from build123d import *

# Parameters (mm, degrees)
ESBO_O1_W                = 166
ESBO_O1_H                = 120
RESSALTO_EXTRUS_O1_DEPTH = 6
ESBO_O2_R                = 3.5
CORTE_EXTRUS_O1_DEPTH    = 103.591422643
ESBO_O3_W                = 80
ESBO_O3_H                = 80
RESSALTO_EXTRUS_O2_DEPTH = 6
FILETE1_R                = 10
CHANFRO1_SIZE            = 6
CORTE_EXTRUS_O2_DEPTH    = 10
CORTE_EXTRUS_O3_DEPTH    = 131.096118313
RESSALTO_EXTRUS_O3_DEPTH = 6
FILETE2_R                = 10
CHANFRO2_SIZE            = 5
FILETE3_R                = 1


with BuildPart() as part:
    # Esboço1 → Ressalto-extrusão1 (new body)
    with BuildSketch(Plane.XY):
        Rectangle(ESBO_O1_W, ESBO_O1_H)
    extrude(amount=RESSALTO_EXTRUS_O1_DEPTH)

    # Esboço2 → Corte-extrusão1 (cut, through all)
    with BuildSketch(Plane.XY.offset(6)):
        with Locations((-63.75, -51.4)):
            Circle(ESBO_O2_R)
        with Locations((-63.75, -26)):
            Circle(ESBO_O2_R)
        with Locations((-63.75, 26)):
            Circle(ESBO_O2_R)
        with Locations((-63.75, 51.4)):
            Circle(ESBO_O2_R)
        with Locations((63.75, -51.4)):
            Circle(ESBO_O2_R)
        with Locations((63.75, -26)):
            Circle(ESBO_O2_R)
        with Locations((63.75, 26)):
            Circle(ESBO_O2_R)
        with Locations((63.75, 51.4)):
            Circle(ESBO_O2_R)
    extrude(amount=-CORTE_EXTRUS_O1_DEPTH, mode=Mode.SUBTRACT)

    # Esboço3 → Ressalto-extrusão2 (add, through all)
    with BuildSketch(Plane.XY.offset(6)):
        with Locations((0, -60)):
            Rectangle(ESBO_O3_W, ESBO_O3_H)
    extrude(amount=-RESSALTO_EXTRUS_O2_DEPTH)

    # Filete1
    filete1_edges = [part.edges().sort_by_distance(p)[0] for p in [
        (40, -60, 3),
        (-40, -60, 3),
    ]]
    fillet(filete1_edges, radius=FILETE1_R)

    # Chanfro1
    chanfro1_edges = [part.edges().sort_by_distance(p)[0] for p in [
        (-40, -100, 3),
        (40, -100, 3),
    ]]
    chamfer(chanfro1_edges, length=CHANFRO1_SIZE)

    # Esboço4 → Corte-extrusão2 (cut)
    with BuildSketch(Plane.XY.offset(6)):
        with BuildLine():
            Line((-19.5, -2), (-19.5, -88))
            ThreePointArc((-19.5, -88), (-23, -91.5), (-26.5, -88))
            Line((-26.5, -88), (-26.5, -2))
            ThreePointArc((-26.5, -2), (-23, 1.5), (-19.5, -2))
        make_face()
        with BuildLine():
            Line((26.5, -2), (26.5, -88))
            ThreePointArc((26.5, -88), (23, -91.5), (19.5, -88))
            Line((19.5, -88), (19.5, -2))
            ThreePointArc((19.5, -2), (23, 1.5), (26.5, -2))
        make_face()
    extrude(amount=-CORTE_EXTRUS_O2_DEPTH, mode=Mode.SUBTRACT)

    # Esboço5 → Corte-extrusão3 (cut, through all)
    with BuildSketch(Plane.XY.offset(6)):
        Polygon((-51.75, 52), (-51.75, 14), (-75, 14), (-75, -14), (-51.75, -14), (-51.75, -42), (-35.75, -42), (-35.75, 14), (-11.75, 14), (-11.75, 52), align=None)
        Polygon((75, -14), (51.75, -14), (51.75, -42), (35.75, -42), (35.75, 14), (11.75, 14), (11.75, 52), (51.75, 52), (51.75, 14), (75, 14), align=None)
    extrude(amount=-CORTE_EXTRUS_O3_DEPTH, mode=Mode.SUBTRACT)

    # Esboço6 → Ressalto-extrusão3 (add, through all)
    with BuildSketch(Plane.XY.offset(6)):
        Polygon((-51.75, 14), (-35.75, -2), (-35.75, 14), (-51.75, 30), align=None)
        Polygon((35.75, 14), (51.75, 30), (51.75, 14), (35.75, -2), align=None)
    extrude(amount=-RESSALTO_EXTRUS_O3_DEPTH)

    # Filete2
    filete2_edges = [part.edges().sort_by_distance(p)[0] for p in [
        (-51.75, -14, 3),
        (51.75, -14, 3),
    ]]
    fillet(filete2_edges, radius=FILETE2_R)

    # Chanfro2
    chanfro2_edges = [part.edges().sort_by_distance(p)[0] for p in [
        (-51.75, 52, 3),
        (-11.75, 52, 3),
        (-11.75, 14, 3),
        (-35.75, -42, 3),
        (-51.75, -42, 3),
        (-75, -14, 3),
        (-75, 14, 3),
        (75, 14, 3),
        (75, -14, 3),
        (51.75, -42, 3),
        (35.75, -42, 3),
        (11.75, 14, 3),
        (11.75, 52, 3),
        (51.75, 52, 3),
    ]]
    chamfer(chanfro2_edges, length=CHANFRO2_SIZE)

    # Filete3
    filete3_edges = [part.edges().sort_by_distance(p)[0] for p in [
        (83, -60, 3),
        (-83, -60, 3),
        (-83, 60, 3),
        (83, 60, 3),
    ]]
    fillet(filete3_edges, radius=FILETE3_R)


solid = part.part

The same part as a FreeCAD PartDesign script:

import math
import FreeCAD as App
import Part
import Sketcher
from FreeCAD import Vector


def edges_at(feature, points):
    """Names of the edges that pass closest to the given points."""
    edges = feature.Shape.Edges
    near = lambda p: min(range(len(edges)), key=lambda i: edges[i].distToShape(Part.Vertex(*p))[0])
    return sorted({f"Edge{near(p) + 1}" for p in points})


def add_polygon(sketch, points):
    """Adds a closed chain of lines whose ends are joined by coincident constraints."""
    first, n = sketch.GeometryCount, len(points)
    for a, b in zip(points, points[1:] + points[:1]):
        sketch.addGeometry(Part.LineSegment(App.Vector(*a, 0), App.Vector(*b, 0)), False)
    for i in range(n):
        sketch.addConstraint(Sketcher.Constraint("Coincident", first + i, 2, first + (i + 1) % n, 1))

doc = App.newDocument("Part")
params = doc.addObject("Spreadsheet::Sheet", "Params")
for row, (alias, value) in enumerate([
    ("sketch1_width", "166 mm"),
    ("sketch1_height", "120 mm"),
    ("pad1_length", "6 mm"),
    ("sketch2_diameter", "7 mm"),
    ("sketch3_width", "80 mm"),
    ("fillet_radius", "10 mm"),
    ("chamfer_size", "6 mm"),
    ("sketch4_radius", "3.5 mm"),
    ("sketch4_height", "86 mm"),
    ("pocket2_length", "10 mm"),
    ("sketch5_width", "16 mm"),
    ("sketch5_width2", "24 mm"),
    ("sketch5_height", "38 mm"),
    ("sketch5_height2", "28 mm"),
    ("sketch5_width3", "23.25 mm"),
    ("sketch6_height", "16 mm"),
    ("fillet2_radius", "10 mm"),
    ("chamfer2_size", "5 mm"),
    ("fillet3_radius", "1 mm"),
], start=1):
    params.set(f"A{row}", alias)
    params.set(f"B{row}", "=" + value)
    params.setAlias(f"B{row}", alias)

body = doc.addObject("PartDesign::Body", "Body")

sketch1 = body.newObject("Sketcher::SketchObject", "Sketch")
sketch1.AttachmentSupport = (doc.getObject("XY_Plane"), [""])
sketch1.MapMode = "FlatFace"
add_polygon(sketch1, [(-83, 60), (-83, -60), (83, -60), (83, 60)])
sketch1.addConstraint(Sketcher.Constraint("Vertical", 0))
sketch1.addConstraint(Sketcher.Constraint("Horizontal", 1))
sketch1.addConstraint(Sketcher.Constraint("Vertical", 2))
sketch1.addConstraint(Sketcher.Constraint("Horizontal", 3))
sketch1.addConstraint(Sketcher.Constraint("Symmetric", 0, 2, 2, 2, -1, 1))
sketch1.addConstraint(Sketcher.Constraint("DistanceX", 1, 1, 1, 2, 166.0))
sketch1.addConstraint(Sketcher.Constraint("DistanceY", 0, 2, 0, 1, 120.0))
sketch1.setExpression("Constraints[9]", "Params.sketch1_width")
sketch1.setExpression("Constraints[10]", "Params.sketch1_height")
pad1 = body.newObject("PartDesign::Pad", "Pad")
pad1.Profile = sketch1
pad1.setExpression("Length", "Params.pad1_length")

sketch2 = body.newObject("Sketcher::SketchObject", "Sketch001")
sketch2.AttachmentSupport = (doc.getObject("XY_Plane"), [""])
sketch2.MapMode = "FlatFace"
sketch2.AttachmentOffset = App.Placement(Vector(0, 0, 6), App.Rotation())
sketch2.addGeometry(Part.Circle(Vector(-63.75, -51.4, 0), Vector(0, 0, 1), 3.5), False)
sketch2.addGeometry(Part.Circle(Vector(-63.75, -26, 0), Vector(0, 0, 1), 3.5), False)
sketch2.addGeometry(Part.Circle(Vector(-63.75, 26, 0), Vector(0, 0, 1), 3.5), False)
sketch2.addGeometry(Part.Circle(Vector(-63.75, 51.4, 0), Vector(0, 0, 1), 3.5), False)
sketch2.addGeometry(Part.Circle(Vector(63.75, -51.4, 0), Vector(0, 0, 1), 3.5), False)
sketch2.addGeometry(Part.Circle(Vector(63.75, -26, 0), Vector(0, 0, 1), 3.5), False)
sketch2.addGeometry(Part.Circle(Vector(63.75, 26, 0), Vector(0, 0, 1), 3.5), False)
sketch2.addGeometry(Part.Circle(Vector(63.75, 51.4, 0), Vector(0, 0, 1), 3.5), False)
sketch2.addConstraint(Sketcher.Constraint("Equal", 0, 1))
sketch2.addConstraint(Sketcher.Constraint("Equal", 1, 2))
sketch2.addConstraint(Sketcher.Constraint("Equal", 2, 3))
sketch2.addConstraint(Sketcher.Constraint("Equal", 3, 4))
sketch2.addConstraint(Sketcher.Constraint("Equal", 4, 5))
sketch2.addConstraint(Sketcher.Constraint("Equal", 5, 6))
sketch2.addConstraint(Sketcher.Constraint("Equal", 6, 7))
sketch2.addConstraint(Sketcher.Constraint("Symmetric", 3, 3, 4, 3, -1, 1))
sketch2.addConstraint(Sketcher.Constraint("Symmetric", 2, 3, 5, 3, -1, 1))
sketch2.addConstraint(Sketcher.Constraint("Symmetric", 1, 3, 6, 3, -1, 1))
sketch2.addConstraint(Sketcher.Constraint("Symmetric", 0, 3, 7, 3, -1, 1))
sketch2.addConstraint(Sketcher.Constraint("Symmetric", 0, 3, 4, 3, -2))
sketch2.addConstraint(Sketcher.Constraint("Symmetric", 1, 3, 5, 3, -2))
sketch2.addConstraint(Sketcher.Constraint("Vertical", 0, 3, 1, 3))
sketch2.addConstraint(Sketcher.Constraint("Diameter", 0, 7.0))
sketch2.addConstraint(Sketcher.Constraint("DistanceY", 1, 3, -1, 1, 26.0))
sketch2.addConstraint(Sketcher.Constraint("DistanceY", 0, 3, -1, 1, 51.4))
sketch2.addConstraint(Sketcher.Constraint("DistanceX", 0, 3, 4, 3, 127.5))
sketch2.setExpression("Constraints[14]", "Params.sketch2_diameter")
pocket1 = body.newObject("PartDesign::Pocket", "Pocket")
pocket1.Profile = sketch2
pocket1.Type = "ThroughAll"

sketch3 = body.newObject("Sketcher::SketchObject", "Sketch002")
sketch3.AttachmentSupport = (doc.getObject("XY_Plane"), [""])
sketch3.MapMode = "FlatFace"
sketch3.AttachmentOffset = App.Placement(Vector(0, 0, 6), App.Rotation())
add_polygon(sketch3, [(-40, -20), (-40, -100), (40, -100), (40, -20)])
sketch3.addConstraint(Sketcher.Constraint("Vertical", 0))
sketch3.addConstraint(Sketcher.Constraint("Horizontal", 1))
sketch3.addConstraint(Sketcher.Constraint("Vertical", 2))
sketch3.addConstraint(Sketcher.Constraint("Horizontal", 3))
sketch3.addConstraint(Sketcher.Constraint("Equal", 3, 0))
sketch3.addConstraint(Sketcher.Constraint("DistanceX", 1, 1, 1, 2, 80.0))
sketch3.addConstraint(Sketcher.Constraint("DistanceX", 0, 2, -1, 1, 40.0))
sketch3.addConstraint(Sketcher.Constraint("DistanceY", 0, 2, -1, 1, 100.0))
sketch3.setExpression("Constraints[9]", "Params.sketch3_width")
pad2 = body.newObject("PartDesign::Pad", "Pad001")
pad2.Profile = sketch3
pad2.Type = "UpToLast"
pad2.Reversed = True
doc.recompute()

fillet = body.newObject("PartDesign::Fillet", "Fillet")
fillet.Base = (pad2, edges_at(pad2, [(40, -60, 3), (-40, -60, 3)]))
fillet.setExpression("Radius", "Params.fillet_radius")
doc.recompute()

chamfer = body.newObject("PartDesign::Chamfer", "Chamfer")
chamfer.Base = (fillet, edges_at(fillet, [(-40, -100, 3), (40, -100, 3)]))
chamfer.setExpression("Size", "Params.chamfer_size")

sketch4 = body.newObject("Sketcher::SketchObject", "Sketch003")
sketch4.AttachmentSupport = (doc.getObject("XY_Plane"), [""])
sketch4.MapMode = "FlatFace"
sketch4.AttachmentOffset = App.Placement(Vector(0, 0, 6), App.Rotation())
sketch4.addGeometry(Part.LineSegment(Vector(-19.5, -88, 0), Vector(-19.5, -2, 0)), False)
sketch4.addGeometry(Part.ArcOfCircle(Part.Circle(Vector(-23, -2, 0), Vector(0, 0, 1), 3.5), math.radians(0), math.radians(180)), False)
sketch4.addGeometry(Part.LineSegment(Vector(-26.5, -2, 0), Vector(-26.5, -88, 0)), False)
sketch4.addGeometry(Part.ArcOfCircle(Part.Circle(Vector(-23, -88, 0), Vector(0, 0, 1), 3.5), math.radians(180), math.radians(360)), False)
sketch4.addGeometry(Part.LineSegment(Vector(26.5, -88, 0), Vector(26.5, -2, 0)), False)
sketch4.addGeometry(Part.ArcOfCircle(Part.Circle(Vector(23, -2, 0), Vector(0, 0, 1), 3.5), math.radians(0), math.radians(180)), False)
sketch4.addGeometry(Part.LineSegment(Vector(19.5, -2, 0), Vector(19.5, -88, 0)), False)
sketch4.addGeometry(Part.ArcOfCircle(Part.Circle(Vector(23, -88, 0), Vector(0, 0, 1), 3.5), math.radians(180), math.radians(360)), False)
sketch4.addConstraint(Sketcher.Constraint("Tangent", 0, 2, 1, 1))
sketch4.addConstraint(Sketcher.Constraint("Tangent", 1, 2, 2, 1))
sketch4.addConstraint(Sketcher.Constraint("Tangent", 2, 2, 3, 1))
sketch4.addConstraint(Sketcher.Constraint("Tangent", 3, 2, 0, 1))
sketch4.addConstraint(Sketcher.Constraint("Tangent", 4, 2, 5, 1))
sketch4.addConstraint(Sketcher.Constraint("Tangent", 5, 2, 6, 1))
sketch4.addConstraint(Sketcher.Constraint("Tangent", 6, 2, 7, 1))
sketch4.addConstraint(Sketcher.Constraint("Tangent", 7, 2, 4, 1))
sketch4.addConstraint(Sketcher.Constraint("Vertical", 0))
sketch4.addConstraint(Sketcher.Constraint("Vertical", 2))
sketch4.addConstraint(Sketcher.Constraint("Vertical", 4))
sketch4.addConstraint(Sketcher.Constraint("Vertical", 6))
sketch4.addConstraint(Sketcher.Constraint("Equal", 3, 5))
sketch4.addConstraint(Sketcher.Constraint("Symmetric", 1, 3, 5, 3, -2))
sketch4.addConstraint(Sketcher.Constraint("Horizontal", 3, 3, 7, 3))
sketch4.addConstraint(Sketcher.Constraint("Radius", 1, 3.5))
sketch4.addConstraint(Sketcher.Constraint("DistanceY", 0, 1, 0, 2, 86.0))
sketch4.addConstraint(Sketcher.Constraint("DistanceX", 1, 3, -1, 1, 23.0))
sketch4.addConstraint(Sketcher.Constraint("DistanceY", 1, 3, -1, 1, 2.0))
sketch4.setExpression("Constraints[15]", "Params.sketch4_radius")
sketch4.setExpression("Constraints[16]", "Params.sketch4_height")
pocket2 = body.newObject("PartDesign::Pocket", "Pocket001")
pocket2.Profile = sketch4
pocket2.setExpression("Length", "Params.pocket2_length")

sketch5 = body.newObject("Sketcher::SketchObject", "Sketch004")
sketch5.AttachmentSupport = (doc.getObject("XY_Plane"), [""])
sketch5.MapMode = "FlatFace"
sketch5.AttachmentOffset = App.Placement(Vector(0, 0, 6), App.Rotation())
add_polygon(sketch5, [(-51.75, 52), (-51.75, 14), (-75, 14), (-75, -14), (-51.75, -14), (-51.75, -42), (-35.75, -42), (-35.75, 14), (-11.75, 14), (-11.75, 52)])
add_polygon(sketch5, [(51.75, -14), (75, -14), (75, 14), (51.75, 14), (51.75, 52), (11.75, 52), (11.75, 14), (35.75, 14), (35.75, -42), (51.75, -42)])
sketch5.addConstraint(Sketcher.Constraint("Vertical", 0))
sketch5.addConstraint(Sketcher.Constraint("Horizontal", 1))
sketch5.addConstraint(Sketcher.Constraint("Vertical", 2))
sketch5.addConstraint(Sketcher.Constraint("Horizontal", 3))
sketch5.addConstraint(Sketcher.Constraint("Vertical", 4))
sketch5.addConstraint(Sketcher.Constraint("Horizontal", 5))
sketch5.addConstraint(Sketcher.Constraint("Vertical", 6))
sketch5.addConstraint(Sketcher.Constraint("Horizontal", 7))
sketch5.addConstraint(Sketcher.Constraint("Vertical", 8))
sketch5.addConstraint(Sketcher.Constraint("Horizontal", 9))
sketch5.addConstraint(Sketcher.Constraint("Horizontal", 10))
sketch5.addConstraint(Sketcher.Constraint("Vertical", 11))
sketch5.addConstraint(Sketcher.Constraint("Horizontal", 12))
sketch5.addConstraint(Sketcher.Constraint("Vertical", 13))
sketch5.addConstraint(Sketcher.Constraint("Horizontal", 14))
sketch5.addConstraint(Sketcher.Constraint("Vertical", 15))
sketch5.addConstraint(Sketcher.Constraint("Horizontal", 16))
sketch5.addConstraint(Sketcher.Constraint("Vertical", 17))
sketch5.addConstraint(Sketcher.Constraint("Horizontal", 18))
sketch5.addConstraint(Sketcher.Constraint("Vertical", 19))
sketch5.addConstraint(Sketcher.Constraint("Symmetric", 1, 2, 10, 2, -1, 1))
sketch5.addConstraint(Sketcher.Constraint("Symmetric", 3, 2, 12, 2, -1, 1))
sketch5.addConstraint(Sketcher.Constraint("Symmetric", 0, 2, 12, 2, -2))
sketch5.addConstraint(Sketcher.Constraint("Symmetric", 8, 2, 14, 2, -2))
sketch5.addConstraint(Sketcher.Constraint("Symmetric", 6, 2, 16, 2, -2))
sketch5.addConstraint(Sketcher.Constraint("Symmetric", 4, 2, 18, 2, -2))
sketch5.addConstraint(Sketcher.Constraint("Horizontal", 1, 2, 6, 2))
sketch5.addConstraint(Sketcher.Constraint("Equal", 2, 4))
sketch5.addConstraint(Sketcher.Constraint("DistanceX", 5, 1, 5, 2, 16.0))
sketch5.addConstraint(Sketcher.Constraint("DistanceX", 7, 1, 7, 2, 24.0))
sketch5.addConstraint(Sketcher.Constraint("DistanceY", 0, 2, 0, 1, 38.0))
sketch5.addConstraint(Sketcher.Constraint("DistanceY", 2, 2, 2, 1, 28.0))
sketch5.addConstraint(Sketcher.Constraint("DistanceX", 1, 2, -1, 1, 75.0))
sketch5.addConstraint(Sketcher.Constraint("DistanceX", 1, 2, 1, 1, 23.25))
sketch5.setExpression("Constraints[48]", "Params.sketch5_width")
sketch5.setExpression("Constraints[49]", "Params.sketch5_width2")
sketch5.setExpression("Constraints[50]", "Params.sketch5_height")
sketch5.setExpression("Constraints[51]", "Params.sketch5_height2")
sketch5.setExpression("Constraints[53]", "Params.sketch5_width3")
pocket3 = body.newObject("PartDesign::Pocket", "Pocket002")
pocket3.Profile = sketch5
pocket3.Type = "ThroughAll"

sketch6 = body.newObject("Sketcher::SketchObject", "Sketch005")
sketch6.AttachmentSupport = (doc.getObject("XY_Plane"), [""])
sketch6.MapMode = "FlatFace"
sketch6.AttachmentOffset = App.Placement(Vector(0, 0, 6), App.Rotation())
add_polygon(sketch6, [(-51.75, 14), (-35.75, -2), (-35.75, 14), (-51.75, 30)])
add_polygon(sketch6, [(51.75, 30), (35.75, 14), (35.75, -2), (51.75, 14)])
sketch6.addConstraint(Sketcher.Constraint("Vertical", 1))
sketch6.addConstraint(Sketcher.Constraint("Vertical", 3))
sketch6.addConstraint(Sketcher.Constraint("Vertical", 5))
sketch6.addConstraint(Sketcher.Constraint("Vertical", 7))
sketch6.addConstraint(Sketcher.Constraint("Symmetric", 1, 2, 4, 2, -2))
sketch6.addConstraint(Sketcher.Constraint("Symmetric", 3, 2, 6, 2, -2))
sketch6.addConstraint(Sketcher.Constraint("Parallel", 0, 2))
sketch6.addConstraint(Sketcher.Constraint("Perpendicular", 2, 4))
sketch6.addConstraint(Sketcher.Constraint("Parallel", 4, 6))
sketch6.addConstraint(Sketcher.Constraint("Horizontal", 1, 2, 3, 2))
sketch6.addConstraint(Sketcher.Constraint("Horizontal", 0, 2, 5, 2))
sketch6.addConstraint(Sketcher.Constraint("DistanceY", 1, 1, 1, 2, 16.0))
sketch6.addConstraint(Sketcher.Constraint("DistanceY", 0, 2, -1, 1, 2.0))
sketch6.addConstraint(Sketcher.Constraint("DistanceX", 1, 2, 4, 2, 71.5))
sketch6.setExpression("Constraints[19]", "Params.sketch6_height")
pad3 = body.newObject("PartDesign::Pad", "Pad002")
pad3.Profile = sketch6
pad3.Type = "UpToLast"
pad3.Reversed = True
doc.recompute()

fillet2 = body.newObject("PartDesign::Fillet", "Fillet001")
fillet2.Base = (pad3, edges_at(pad3, [(-51.75, -14, 3), (51.75, -14, 3)]))
fillet2.setExpression("Radius", "Params.fillet2_radius")
doc.recompute()

chamfer2 = body.newObject("PartDesign::Chamfer", "Chamfer001")
chamfer2.Base = (fillet2, edges_at(fillet2, [
    (-51.75, 52, 3),
    (-11.75, 52, 3),
    (-11.75, 14, 3),
    (-35.75, -42, 3),
    (-51.75, -42, 3),
    (-75, -14, 3),
    (-75, 14, 3),
    (75, 14, 3),
    (75, -14, 3),
    (51.75, -42, 3),
    (35.75, -42, 3),
    (11.75, 14, 3),
    (11.75, 52, 3),
    (51.75, 52, 3),
]))
chamfer2.setExpression("Size", "Params.chamfer2_size")
doc.recompute()

fillet3 = body.newObject("PartDesign::Fillet", "Fillet002")
fillet3.Base = (chamfer2, edges_at(chamfer2, [
    (83, -60, 3),
    (-83, -60, 3),
    (-83, 60, 3),
    (83, 60, 3),
]))
fillet3.setExpression("Radius", "Params.fillet3_radius")

doc.recompute()
